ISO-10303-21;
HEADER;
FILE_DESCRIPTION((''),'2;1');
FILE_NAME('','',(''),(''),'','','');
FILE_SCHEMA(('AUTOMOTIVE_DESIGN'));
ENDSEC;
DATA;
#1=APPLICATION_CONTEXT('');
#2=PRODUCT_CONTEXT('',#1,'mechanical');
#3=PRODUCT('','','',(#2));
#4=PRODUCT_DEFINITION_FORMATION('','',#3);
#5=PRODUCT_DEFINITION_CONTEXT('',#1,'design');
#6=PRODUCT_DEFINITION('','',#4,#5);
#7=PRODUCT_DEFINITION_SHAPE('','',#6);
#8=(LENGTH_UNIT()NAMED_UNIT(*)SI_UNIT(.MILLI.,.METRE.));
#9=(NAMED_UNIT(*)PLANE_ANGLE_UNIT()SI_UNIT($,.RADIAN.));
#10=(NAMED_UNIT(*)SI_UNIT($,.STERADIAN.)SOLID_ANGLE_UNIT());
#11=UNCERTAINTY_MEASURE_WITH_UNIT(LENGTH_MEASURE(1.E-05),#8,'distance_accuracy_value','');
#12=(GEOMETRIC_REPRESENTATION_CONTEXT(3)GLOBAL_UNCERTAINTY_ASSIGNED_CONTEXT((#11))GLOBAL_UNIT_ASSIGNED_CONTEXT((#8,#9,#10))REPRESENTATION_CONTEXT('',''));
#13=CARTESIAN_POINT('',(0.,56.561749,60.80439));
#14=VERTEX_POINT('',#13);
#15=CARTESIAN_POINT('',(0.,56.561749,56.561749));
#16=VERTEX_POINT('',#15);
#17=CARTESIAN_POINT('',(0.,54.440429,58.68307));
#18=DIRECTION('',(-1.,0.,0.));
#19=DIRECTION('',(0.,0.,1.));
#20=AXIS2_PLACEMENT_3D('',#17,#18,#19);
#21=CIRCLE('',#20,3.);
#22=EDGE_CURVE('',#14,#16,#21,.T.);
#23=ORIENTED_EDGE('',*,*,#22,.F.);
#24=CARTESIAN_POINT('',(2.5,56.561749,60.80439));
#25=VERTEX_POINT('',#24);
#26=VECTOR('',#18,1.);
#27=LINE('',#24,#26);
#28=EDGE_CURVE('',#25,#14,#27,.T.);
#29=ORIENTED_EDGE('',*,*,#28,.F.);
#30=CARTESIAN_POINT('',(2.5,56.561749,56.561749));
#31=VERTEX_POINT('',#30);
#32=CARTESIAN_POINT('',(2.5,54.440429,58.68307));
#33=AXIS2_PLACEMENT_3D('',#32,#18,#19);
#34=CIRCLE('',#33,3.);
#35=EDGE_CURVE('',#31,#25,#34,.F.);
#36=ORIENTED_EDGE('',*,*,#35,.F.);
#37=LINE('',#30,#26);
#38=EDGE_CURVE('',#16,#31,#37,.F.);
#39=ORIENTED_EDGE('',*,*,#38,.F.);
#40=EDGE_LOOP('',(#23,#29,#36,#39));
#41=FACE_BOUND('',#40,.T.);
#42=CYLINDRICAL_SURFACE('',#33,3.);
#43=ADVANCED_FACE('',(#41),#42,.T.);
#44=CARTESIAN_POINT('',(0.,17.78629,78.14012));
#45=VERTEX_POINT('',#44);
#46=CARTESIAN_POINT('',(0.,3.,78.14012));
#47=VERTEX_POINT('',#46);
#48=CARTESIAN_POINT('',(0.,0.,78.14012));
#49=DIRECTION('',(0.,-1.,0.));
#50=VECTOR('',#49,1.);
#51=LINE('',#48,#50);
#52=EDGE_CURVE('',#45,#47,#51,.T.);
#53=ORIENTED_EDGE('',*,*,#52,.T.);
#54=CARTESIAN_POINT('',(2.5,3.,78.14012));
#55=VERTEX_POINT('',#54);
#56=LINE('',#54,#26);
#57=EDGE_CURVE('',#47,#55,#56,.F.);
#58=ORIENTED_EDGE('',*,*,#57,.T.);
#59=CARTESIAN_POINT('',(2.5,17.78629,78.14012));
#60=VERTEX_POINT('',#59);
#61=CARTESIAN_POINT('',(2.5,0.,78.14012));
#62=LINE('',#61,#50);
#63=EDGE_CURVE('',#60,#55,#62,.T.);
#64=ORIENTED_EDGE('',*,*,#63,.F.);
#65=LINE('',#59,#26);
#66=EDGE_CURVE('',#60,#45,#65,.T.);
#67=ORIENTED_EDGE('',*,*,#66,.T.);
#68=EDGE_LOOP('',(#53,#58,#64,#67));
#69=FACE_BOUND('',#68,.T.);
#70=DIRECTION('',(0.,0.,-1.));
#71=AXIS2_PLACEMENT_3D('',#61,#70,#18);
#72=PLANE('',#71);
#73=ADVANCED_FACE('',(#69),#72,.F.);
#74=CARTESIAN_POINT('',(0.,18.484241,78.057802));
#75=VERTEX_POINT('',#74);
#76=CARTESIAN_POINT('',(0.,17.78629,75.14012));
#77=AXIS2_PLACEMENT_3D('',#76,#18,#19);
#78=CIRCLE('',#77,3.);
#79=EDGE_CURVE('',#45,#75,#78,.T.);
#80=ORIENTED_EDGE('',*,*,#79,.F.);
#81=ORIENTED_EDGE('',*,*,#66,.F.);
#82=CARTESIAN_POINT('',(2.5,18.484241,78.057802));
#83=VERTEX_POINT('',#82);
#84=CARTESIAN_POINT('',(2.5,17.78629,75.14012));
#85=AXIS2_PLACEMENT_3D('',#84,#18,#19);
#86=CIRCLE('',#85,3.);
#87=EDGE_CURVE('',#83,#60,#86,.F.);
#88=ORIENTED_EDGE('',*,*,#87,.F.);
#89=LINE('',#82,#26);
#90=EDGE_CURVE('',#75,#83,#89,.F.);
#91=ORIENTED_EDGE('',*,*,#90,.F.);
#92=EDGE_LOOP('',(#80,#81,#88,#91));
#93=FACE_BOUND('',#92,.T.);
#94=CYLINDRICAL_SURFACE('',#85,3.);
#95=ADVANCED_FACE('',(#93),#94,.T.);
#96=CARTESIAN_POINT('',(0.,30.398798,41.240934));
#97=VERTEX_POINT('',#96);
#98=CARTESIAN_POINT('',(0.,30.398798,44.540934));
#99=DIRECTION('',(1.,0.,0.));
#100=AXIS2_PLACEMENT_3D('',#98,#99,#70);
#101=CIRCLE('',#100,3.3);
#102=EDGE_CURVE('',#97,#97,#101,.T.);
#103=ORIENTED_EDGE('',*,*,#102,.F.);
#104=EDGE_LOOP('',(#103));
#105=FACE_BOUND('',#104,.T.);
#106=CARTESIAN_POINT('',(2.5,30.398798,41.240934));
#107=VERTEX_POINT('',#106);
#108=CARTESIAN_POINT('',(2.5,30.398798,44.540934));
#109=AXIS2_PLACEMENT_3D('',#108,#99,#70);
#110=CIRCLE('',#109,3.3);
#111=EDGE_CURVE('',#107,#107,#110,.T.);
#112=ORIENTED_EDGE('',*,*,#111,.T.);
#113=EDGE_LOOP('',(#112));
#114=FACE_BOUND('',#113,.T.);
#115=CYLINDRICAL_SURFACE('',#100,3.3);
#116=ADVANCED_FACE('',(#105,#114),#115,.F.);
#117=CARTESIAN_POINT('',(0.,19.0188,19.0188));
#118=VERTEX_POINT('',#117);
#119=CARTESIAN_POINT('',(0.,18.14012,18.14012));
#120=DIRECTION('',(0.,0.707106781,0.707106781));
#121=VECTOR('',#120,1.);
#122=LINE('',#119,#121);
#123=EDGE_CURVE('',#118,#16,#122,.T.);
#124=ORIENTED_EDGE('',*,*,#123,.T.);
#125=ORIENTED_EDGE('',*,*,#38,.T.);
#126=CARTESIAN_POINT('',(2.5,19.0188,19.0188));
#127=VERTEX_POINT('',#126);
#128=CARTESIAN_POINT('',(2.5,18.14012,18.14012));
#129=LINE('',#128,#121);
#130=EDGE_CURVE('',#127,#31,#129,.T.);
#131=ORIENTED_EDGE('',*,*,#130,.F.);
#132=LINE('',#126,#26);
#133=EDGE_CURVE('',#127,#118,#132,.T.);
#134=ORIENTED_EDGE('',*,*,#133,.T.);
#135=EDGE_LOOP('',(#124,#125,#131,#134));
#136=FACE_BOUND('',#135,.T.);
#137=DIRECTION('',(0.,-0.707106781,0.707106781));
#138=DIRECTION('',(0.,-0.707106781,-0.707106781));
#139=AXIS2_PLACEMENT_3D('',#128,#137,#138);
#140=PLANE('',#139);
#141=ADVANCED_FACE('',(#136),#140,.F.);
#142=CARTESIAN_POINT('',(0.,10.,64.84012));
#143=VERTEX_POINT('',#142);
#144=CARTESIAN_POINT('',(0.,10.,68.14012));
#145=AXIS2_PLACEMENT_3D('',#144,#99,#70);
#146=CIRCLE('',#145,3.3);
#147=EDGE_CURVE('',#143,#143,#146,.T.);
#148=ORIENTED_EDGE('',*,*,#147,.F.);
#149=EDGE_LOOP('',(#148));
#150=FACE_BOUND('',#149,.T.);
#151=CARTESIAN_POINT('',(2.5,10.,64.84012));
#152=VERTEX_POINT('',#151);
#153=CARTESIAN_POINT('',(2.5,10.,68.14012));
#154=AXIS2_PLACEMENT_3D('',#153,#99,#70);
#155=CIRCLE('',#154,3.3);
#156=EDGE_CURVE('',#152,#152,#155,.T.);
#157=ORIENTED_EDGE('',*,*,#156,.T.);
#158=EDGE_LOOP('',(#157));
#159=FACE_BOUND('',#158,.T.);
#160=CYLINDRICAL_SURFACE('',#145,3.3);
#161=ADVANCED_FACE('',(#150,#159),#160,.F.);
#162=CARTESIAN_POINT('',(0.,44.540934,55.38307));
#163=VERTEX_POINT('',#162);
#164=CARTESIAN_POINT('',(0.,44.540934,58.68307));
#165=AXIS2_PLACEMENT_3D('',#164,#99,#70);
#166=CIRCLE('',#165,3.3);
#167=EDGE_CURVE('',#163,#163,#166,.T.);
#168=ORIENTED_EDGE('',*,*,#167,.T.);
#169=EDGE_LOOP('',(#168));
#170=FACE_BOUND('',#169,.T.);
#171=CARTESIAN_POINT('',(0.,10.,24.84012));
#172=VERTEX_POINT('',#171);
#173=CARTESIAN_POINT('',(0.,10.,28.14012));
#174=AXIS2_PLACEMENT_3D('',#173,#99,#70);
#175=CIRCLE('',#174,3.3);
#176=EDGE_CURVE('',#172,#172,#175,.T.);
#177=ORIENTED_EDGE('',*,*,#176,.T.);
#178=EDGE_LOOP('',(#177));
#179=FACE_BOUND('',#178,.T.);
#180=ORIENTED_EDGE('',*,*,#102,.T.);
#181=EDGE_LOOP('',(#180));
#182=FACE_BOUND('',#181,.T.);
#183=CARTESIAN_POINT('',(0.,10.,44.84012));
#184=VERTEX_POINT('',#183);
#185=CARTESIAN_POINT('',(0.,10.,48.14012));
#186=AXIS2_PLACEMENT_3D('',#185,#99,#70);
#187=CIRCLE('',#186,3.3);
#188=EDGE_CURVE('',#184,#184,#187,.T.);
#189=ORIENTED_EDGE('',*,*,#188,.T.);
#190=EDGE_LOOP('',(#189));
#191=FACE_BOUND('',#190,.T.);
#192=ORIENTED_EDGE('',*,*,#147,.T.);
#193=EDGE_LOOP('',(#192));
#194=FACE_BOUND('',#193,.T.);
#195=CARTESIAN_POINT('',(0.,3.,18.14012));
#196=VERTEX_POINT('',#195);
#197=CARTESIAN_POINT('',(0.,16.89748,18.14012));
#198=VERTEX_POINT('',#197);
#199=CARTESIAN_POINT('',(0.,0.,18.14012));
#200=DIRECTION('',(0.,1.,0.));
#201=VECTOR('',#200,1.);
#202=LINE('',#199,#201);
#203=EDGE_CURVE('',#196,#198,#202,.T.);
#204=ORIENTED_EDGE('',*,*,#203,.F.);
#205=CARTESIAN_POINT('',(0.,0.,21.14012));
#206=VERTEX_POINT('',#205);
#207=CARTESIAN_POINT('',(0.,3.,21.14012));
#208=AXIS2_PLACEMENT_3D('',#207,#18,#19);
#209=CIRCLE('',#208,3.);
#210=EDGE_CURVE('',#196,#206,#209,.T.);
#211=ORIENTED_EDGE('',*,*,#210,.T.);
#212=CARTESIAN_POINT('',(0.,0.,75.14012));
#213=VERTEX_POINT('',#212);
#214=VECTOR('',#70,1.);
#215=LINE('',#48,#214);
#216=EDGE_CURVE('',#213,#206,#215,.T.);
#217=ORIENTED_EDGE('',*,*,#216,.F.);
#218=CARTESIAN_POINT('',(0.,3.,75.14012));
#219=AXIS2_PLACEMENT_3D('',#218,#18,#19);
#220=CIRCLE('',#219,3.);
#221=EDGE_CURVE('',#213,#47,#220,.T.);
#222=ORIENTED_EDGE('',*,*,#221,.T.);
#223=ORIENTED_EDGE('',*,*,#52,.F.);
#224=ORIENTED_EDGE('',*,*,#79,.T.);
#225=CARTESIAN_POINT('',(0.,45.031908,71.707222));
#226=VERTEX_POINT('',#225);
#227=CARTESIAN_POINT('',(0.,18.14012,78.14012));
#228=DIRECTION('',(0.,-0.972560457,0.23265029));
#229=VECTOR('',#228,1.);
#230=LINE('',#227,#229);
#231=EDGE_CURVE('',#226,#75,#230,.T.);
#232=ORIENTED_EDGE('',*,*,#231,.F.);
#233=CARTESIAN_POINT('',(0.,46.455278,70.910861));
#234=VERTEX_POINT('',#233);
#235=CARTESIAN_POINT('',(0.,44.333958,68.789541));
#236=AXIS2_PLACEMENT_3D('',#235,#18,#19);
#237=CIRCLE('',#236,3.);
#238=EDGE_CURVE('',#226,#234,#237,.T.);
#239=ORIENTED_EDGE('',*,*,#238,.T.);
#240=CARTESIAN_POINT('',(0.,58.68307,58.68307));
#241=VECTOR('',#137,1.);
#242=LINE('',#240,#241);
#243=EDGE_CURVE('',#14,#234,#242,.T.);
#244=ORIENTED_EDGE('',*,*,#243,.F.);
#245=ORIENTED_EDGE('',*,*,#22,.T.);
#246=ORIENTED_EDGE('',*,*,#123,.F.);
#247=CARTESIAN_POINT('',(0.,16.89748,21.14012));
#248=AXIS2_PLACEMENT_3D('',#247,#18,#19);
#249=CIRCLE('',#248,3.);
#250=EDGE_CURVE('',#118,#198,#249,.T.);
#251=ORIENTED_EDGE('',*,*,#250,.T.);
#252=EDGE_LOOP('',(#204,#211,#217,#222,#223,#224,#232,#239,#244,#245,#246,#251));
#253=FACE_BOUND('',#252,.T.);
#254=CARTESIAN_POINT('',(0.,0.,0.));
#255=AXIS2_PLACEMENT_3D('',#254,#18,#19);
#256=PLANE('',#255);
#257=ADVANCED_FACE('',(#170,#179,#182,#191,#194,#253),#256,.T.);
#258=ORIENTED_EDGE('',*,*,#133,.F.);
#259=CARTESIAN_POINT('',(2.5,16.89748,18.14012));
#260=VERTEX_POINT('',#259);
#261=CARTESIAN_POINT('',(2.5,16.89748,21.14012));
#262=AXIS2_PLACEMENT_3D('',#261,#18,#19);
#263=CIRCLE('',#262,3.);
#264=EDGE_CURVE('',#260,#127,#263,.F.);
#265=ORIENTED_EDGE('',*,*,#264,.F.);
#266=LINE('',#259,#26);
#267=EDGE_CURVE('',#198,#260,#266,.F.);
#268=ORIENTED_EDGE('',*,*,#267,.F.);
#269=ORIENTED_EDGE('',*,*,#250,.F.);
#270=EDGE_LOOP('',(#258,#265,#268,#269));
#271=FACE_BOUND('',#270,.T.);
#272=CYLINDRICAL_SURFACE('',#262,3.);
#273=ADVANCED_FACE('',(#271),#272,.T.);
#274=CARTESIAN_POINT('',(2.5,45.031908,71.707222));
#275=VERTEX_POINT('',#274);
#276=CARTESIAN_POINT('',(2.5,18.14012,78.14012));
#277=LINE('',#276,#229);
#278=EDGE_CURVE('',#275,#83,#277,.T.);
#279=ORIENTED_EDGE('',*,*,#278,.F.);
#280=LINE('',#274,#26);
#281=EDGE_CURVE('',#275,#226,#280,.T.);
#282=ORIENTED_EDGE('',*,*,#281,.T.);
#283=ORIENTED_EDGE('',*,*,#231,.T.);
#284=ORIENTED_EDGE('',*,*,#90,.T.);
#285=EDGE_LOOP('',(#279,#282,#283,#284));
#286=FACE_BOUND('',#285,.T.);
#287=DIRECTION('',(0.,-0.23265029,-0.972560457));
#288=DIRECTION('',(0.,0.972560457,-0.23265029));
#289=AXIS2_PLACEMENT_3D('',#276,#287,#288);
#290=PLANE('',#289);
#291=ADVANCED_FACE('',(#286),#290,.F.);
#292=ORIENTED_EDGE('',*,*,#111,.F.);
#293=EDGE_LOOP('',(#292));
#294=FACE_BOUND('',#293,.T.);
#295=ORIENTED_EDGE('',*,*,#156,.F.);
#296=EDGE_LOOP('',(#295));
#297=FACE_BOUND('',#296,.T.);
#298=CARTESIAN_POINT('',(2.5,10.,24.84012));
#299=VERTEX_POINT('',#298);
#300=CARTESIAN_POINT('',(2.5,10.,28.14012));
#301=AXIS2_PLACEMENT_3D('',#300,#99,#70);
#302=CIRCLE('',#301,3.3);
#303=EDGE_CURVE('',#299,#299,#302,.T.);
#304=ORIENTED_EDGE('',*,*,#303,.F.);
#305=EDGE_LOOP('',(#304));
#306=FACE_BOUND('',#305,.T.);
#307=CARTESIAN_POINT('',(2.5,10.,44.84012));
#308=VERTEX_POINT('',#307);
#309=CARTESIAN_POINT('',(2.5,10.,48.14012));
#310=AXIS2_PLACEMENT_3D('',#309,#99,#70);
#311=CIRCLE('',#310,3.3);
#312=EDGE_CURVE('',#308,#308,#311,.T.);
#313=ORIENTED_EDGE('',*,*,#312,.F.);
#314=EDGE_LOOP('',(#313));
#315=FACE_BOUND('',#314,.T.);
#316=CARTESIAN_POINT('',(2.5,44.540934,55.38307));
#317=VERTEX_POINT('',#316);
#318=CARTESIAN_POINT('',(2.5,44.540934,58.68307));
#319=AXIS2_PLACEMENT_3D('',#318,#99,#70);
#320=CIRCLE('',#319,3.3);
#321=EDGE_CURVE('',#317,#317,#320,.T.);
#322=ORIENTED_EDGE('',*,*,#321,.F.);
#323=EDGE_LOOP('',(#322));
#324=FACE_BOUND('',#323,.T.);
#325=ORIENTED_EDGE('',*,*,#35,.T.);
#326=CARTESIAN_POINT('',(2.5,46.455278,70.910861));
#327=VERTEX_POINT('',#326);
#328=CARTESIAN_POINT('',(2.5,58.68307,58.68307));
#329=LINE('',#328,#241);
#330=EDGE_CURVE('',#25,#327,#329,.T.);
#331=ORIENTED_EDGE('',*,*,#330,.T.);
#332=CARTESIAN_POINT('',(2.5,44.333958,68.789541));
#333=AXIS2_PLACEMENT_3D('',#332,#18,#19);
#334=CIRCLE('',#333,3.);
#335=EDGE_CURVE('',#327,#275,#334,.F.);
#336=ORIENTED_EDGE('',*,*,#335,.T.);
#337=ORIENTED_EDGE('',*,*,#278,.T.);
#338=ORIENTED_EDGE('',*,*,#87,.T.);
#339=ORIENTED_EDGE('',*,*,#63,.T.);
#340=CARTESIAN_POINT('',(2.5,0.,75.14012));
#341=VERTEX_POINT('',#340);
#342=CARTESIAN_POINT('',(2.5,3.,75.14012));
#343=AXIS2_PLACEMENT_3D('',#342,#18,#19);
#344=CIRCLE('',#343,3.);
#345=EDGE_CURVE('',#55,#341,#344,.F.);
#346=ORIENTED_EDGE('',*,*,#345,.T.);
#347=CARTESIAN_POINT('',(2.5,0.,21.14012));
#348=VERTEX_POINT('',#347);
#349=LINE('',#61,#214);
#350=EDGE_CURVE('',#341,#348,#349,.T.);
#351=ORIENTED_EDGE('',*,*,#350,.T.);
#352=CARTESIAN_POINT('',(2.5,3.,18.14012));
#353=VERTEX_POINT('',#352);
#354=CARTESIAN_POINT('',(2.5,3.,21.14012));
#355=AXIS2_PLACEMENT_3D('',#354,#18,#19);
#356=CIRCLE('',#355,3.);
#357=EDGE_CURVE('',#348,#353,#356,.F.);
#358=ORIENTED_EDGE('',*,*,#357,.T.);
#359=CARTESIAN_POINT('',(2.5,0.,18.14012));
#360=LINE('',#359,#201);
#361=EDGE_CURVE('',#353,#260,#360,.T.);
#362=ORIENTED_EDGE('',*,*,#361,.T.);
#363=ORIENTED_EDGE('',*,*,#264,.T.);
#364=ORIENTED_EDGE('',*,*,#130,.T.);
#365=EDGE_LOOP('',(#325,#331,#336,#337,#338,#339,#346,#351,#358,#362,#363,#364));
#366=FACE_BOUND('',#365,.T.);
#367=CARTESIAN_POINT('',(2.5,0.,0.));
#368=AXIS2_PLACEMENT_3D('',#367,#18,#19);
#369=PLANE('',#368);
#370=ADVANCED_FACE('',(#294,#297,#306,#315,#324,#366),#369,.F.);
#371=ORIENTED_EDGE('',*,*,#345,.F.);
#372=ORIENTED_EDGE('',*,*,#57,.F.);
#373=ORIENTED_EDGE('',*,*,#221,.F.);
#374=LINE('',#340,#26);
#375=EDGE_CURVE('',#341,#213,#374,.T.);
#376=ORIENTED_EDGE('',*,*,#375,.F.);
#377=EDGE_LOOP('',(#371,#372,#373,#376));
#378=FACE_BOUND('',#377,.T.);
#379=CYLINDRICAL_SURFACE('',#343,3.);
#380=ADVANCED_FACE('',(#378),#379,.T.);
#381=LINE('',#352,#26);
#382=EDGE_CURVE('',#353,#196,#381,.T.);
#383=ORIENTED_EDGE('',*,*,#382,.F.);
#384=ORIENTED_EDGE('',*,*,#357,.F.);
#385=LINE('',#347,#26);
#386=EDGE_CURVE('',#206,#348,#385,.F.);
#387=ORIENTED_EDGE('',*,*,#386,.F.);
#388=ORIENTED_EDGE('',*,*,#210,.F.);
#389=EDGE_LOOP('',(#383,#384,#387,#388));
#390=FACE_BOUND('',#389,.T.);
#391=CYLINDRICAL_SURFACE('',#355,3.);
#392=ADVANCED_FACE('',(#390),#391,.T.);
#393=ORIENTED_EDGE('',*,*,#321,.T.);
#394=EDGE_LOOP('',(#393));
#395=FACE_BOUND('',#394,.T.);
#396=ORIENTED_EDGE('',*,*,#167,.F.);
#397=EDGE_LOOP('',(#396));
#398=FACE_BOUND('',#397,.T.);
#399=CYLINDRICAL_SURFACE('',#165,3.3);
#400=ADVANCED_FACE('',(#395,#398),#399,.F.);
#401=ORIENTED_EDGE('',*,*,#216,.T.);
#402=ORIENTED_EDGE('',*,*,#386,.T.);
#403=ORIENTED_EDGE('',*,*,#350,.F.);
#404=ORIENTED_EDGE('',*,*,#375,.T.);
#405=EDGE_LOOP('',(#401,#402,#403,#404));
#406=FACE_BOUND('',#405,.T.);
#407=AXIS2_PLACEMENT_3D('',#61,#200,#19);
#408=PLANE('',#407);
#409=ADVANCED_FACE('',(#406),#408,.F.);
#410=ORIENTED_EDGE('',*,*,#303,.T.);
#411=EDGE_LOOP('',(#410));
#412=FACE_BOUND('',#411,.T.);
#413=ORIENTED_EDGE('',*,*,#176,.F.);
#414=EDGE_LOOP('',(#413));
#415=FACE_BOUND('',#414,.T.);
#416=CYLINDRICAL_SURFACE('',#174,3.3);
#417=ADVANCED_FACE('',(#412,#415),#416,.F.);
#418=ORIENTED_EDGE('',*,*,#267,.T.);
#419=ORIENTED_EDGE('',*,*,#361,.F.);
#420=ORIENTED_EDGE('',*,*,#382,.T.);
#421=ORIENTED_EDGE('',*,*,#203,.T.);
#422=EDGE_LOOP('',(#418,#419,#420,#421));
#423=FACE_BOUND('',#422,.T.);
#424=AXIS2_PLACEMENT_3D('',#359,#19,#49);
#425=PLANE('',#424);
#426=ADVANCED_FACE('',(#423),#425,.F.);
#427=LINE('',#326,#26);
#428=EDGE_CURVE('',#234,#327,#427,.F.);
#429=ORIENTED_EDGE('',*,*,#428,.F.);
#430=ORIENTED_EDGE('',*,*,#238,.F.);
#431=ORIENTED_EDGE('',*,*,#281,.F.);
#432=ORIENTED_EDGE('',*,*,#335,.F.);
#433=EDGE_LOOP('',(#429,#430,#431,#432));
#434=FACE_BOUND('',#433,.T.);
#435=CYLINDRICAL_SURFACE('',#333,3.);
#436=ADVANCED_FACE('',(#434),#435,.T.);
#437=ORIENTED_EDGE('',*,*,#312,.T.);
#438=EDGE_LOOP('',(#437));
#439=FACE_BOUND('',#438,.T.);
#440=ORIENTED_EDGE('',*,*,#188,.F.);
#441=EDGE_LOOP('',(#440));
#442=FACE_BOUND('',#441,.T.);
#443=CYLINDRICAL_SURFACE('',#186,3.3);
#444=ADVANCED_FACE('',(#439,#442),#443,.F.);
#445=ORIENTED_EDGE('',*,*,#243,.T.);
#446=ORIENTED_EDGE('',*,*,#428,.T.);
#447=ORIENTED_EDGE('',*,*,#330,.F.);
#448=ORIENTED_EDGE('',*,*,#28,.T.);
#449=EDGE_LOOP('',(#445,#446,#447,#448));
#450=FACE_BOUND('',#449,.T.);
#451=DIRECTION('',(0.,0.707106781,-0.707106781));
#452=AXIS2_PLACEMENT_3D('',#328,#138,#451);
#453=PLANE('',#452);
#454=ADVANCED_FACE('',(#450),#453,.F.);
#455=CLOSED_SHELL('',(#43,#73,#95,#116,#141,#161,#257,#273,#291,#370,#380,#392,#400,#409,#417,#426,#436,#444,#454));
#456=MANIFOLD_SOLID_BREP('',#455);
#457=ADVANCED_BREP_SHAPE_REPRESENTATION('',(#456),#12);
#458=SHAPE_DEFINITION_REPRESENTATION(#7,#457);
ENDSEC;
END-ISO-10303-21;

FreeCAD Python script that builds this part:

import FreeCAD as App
import Part
import Sketcher
from FreeCAD import Vector
Q = App.Units.Quantity


def edges_at(feature, points):
    """Names of the edges that pass closest to the given points."""
    edges = feature.Shape.Edges
    near = lambda p: min(range(len(edges)), key=lambda i: edges[i].distToShape(Part.Vertex(*p))[0])
    return sorted({f"Edge{near(p) + 1}" for p in points})


def add_polygon(sketch, points):
    """Adds a closed chain of lines whose ends are joined by coincident constraints."""
    first, n = sketch.GeometryCount, len(points)
    for a, b in zip(points, points[1:] + points[:1]):
        sketch.addGeometry(Part.LineSegment(App.Vector(*a, 0), App.Vector(*b, 0)), False)
    for i in range(n):
        sketch.addConstraint(Sketcher.Constraint("Coincident", first + i, 2, first + (i + 1) % n, 1))

doc = App.newDocument("Part")
params = doc.addObject("Spreadsheet::Sheet", "Params")
for row, (alias, value) in enumerate([
    ("sketch1_height", "60 mm"),
    ("pad1_length", "2.5 mm"),
    ("sketch2_diameter", "6.6 mm"),
    ("linearpattern_pitch", "20 mm"),
    ("sketch3_diameter", "6.6 mm"),
    ("linearpattern2_pitch", "20 mm"),
    ("fillet_radius", "3 mm"),
], start=1):
    params.set(f"A{row}", alias)
    params.set(f"B{row}", "=" + value)
    params.setAlias(f"B{row}", alias)

body = doc.addObject("PartDesign::Body", "Body")

# Sketch on YZ plane
sketch1 = body.newObject("Sketcher::SketchObject", "Sketch")
sketch1.AttachmentSupport = (doc.getObject("YZ_Plane"), [""])
sketch1.MapMode = "FlatFace"
add_polygon(sketch1, [(0, 78), (0, 18), (18, 18), (59, 59), (46, 72), (18, 78)])  # lines 0-5
sketch1.addConstraint([
    Sketcher.Constraint("Vertical", 0),
    Sketcher.Constraint("Horizontal", 1),
    Sketcher.Constraint("Horizontal", 5),
    Sketcher.Constraint("PointOnObject", 0, 2, -2),
    Sketcher.Constraint("Perpendicular", 2, 3),
    Sketcher.Constraint("Vertical", 1, 2, 4, 2),
    Sketcher.Constraint("DistanceY", 0, 2, 0, 1, Q("60 mm")),
    Sketcher.Constraint("Angle", 2, Q("45 deg")),
    Sketcher.Constraint("DistanceX", 1, 1, 1, 2, Q("18.14012 mm")),
    Sketcher.Constraint("Distance", 2, Q("57.336389 mm")),
    Sketcher.Constraint("Distance", 3, Q("18.14012 mm")),
    Sketcher.Constraint("DistanceY", -1, 1, 0, 2, Q("18.14012 mm")),
])
sketch1.setExpression("Constraints[12]", "Params.sketch1_height")
pad1 = body.newObject("PartDesign::Pad", "Pad")
pad1.Profile = sketch1
pad1.setExpression("Length", "Params.pad1_length")

# Sketch on YZ plane
sketch2 = body.newObject("Sketcher::SketchObject", "Sketch001")
sketch2.AttachmentSupport = (doc.getObject("YZ_Plane"), [""])
sketch2.MapMode = "FlatFace"
sketch2.AttachmentOffset = App.Placement(Vector(0, 0, 2.5), App.Rotation())
sketch2.addGeometry(Part.Circle(Vector(10, 28.1, 0), Vector(0, 0, 1), 3.3), False)
sketch2.addConstraint([
    Sketcher.Constraint("Diameter", 0, Q("6.6 mm")),
    Sketcher.Constraint("DistanceX", -1, 1, 0, 3, Q("10 mm")),
    Sketcher.Constraint("DistanceY", -1, 1, 0, 3, Q("28.14012 mm")),
])
sketch2.setExpression("Constraints[0]", "Params.sketch2_diameter")
pocket1 = body.newObject("PartDesign::Pocket", "Pocket")
pocket1.Profile = sketch2
pocket1.Type = "ThroughAll"
doc.recompute()

linearpattern = body.newObject("PartDesign::LinearPattern", "LinearPattern")
linearpattern.Originals = [pocket1]
linearpattern.Direction = (doc.getObject("Z_Axis"), [""])
linearpattern.Mode = "offset"
linearpattern.setExpression("Offset", "Params.linearpattern_pitch")
linearpattern.Occurrences = 3
body.Tip = linearpattern

# Sketch on YZ plane
sketch3 = body.newObject("Sketcher::SketchObject", "Sketch002")
sketch3.AttachmentSupport = (doc.getObject("YZ_Plane"), [""])
sketch3.MapMode = "FlatFace"
sketch3.AttachmentOffset = App.Placement(Vector(0, 0, 2.5), App.Rotation())
sketch3.addGeometry(Part.Circle(Vector(44.5, 58.7, 0), Vector(0, 0, 1), 3.3), False)
sketch3.addConstraint([
    Sketcher.Constraint("Diameter", 0, Q("6.6 mm")),
    Sketcher.Constraint("DistanceY", -1, 1, 0, 3, Q("58.68307 mm")),
    Sketcher.Constraint("DistanceX", -1, 1, 0, 3, Q("44.540934 mm")),
])
sketch3.setExpression("Constraints[0]", "Params.sketch3_diameter")
pocket2 = body.newObject("PartDesign::Pocket", "Pocket001")
pocket2.Profile = sketch3
pocket2.Type = "ThroughAll"
doc.recompute()

datumline = body.newObject("PartDesign::Line", "DatumLine")
datumline.Placement = App.Placement(Vector(0, 0, 0), App.Rotation(Vector(0, 0, 1), Vector(0, -0.707106781, -0.707106781)))
linearpattern2 = body.newObject("PartDesign::LinearPattern", "LinearPattern001")
linearpattern2.Originals = [pocket2]
linearpattern2.Direction = (datumline, [""])
linearpattern2.Mode = "offset"
linearpattern2.setExpression("Offset", "Params.linearpattern2_pitch")
linearpattern2.Occurrences = 2
body.Tip = linearpattern2
doc.recompute()

fillet = body.newObject("PartDesign::Fillet", "Fillet")
fillet.Base = (linearpattern2, edges_at(linearpattern2, [
    (1.25, 18.14, 78.14),
    (1.25, 45.856, 71.51),
    (1.25, 58.683, 58.683),
    (1.25, 18.14, 18.14),
    (1.25, 0, 18.14),
    (1.25, 0, 78.14),
]))
fillet.setExpression("Radius", "Params.fillet_radius")

doc.recompute()
